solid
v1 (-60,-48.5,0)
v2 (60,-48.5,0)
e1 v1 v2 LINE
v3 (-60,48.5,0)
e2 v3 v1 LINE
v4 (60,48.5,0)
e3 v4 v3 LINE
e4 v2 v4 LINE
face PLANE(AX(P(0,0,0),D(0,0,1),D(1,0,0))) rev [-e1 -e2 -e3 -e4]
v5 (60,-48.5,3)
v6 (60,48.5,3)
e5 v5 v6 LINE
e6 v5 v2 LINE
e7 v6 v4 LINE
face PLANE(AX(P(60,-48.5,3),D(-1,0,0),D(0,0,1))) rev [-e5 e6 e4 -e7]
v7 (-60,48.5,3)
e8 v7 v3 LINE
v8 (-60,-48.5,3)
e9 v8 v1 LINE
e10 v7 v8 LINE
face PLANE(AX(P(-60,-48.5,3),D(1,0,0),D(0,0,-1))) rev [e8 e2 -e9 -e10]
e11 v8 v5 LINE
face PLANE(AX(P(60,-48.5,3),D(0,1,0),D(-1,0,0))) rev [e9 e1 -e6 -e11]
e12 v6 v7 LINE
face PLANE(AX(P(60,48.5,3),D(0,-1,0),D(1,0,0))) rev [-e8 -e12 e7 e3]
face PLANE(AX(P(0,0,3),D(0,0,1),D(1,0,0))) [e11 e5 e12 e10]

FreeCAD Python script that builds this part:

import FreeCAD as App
import Part
import Sketcher

V = App.Vector
Q = App.Units.Quantity


def add_polygon(sketch, points):
    """Adds a closed chain of lines whose ends are joined by coincident constraints."""
    first, n = sketch.GeometryCount, len(points)
    for a, b in zip(points, points[1:] + points[:1]):
        sketch.addGeometry(Part.LineSegment(App.Vector(*a, 0), App.Vector(*b, 0)), False)
    for i in range(n):
        sketch.addConstraint(Sketcher.Constraint("Coincident", first + i, 2, first + (i + 1) % n, 1))

doc = App.newDocument("Part")
body = doc.addObject("PartDesign::Body", "Body")

# Sketch on XY plane
sketch1 = doc.addObject("Sketcher::SketchObject", "Sketch")
body.addObject(sketch1)
sketch1.AttachmentSupport = (doc.XY_Plane, [""])
sketch1.MapMode = "FlatFace"
add_polygon(sketch1, [(-60, 48), (-60, -48), (60, -48), (60, 48)])  # lines 0-3
sketch1.addConstraint(Sketcher.Constraint("Vertical", 0))
sketch1.addConstraint(Sketcher.Constraint("Horizontal", 1))
sketch1.addConstraint(Sketcher.Constraint("Vertical", 2))
sketch1.addConstraint(Sketcher.Constraint("Horizontal", 3))
sketch1.addConstraint(Sketcher.Constraint("Symmetric", 0, 2, 2, 2, -1, 1))
sketch1.addConstraint(Sketcher.Constraint("DistanceX", 1, 1, 1, 2, Q("120 mm")))
sketch1.addConstraint(Sketcher.Constraint("DistanceY", 0, 2, 0, 1, Q("97 mm")))
pad1 = doc.addObject("PartDesign::Pad", "Pad")
body.addObject(pad1)
pad1.Profile = sketch1
pad1.Length = 3

doc.recompute()
